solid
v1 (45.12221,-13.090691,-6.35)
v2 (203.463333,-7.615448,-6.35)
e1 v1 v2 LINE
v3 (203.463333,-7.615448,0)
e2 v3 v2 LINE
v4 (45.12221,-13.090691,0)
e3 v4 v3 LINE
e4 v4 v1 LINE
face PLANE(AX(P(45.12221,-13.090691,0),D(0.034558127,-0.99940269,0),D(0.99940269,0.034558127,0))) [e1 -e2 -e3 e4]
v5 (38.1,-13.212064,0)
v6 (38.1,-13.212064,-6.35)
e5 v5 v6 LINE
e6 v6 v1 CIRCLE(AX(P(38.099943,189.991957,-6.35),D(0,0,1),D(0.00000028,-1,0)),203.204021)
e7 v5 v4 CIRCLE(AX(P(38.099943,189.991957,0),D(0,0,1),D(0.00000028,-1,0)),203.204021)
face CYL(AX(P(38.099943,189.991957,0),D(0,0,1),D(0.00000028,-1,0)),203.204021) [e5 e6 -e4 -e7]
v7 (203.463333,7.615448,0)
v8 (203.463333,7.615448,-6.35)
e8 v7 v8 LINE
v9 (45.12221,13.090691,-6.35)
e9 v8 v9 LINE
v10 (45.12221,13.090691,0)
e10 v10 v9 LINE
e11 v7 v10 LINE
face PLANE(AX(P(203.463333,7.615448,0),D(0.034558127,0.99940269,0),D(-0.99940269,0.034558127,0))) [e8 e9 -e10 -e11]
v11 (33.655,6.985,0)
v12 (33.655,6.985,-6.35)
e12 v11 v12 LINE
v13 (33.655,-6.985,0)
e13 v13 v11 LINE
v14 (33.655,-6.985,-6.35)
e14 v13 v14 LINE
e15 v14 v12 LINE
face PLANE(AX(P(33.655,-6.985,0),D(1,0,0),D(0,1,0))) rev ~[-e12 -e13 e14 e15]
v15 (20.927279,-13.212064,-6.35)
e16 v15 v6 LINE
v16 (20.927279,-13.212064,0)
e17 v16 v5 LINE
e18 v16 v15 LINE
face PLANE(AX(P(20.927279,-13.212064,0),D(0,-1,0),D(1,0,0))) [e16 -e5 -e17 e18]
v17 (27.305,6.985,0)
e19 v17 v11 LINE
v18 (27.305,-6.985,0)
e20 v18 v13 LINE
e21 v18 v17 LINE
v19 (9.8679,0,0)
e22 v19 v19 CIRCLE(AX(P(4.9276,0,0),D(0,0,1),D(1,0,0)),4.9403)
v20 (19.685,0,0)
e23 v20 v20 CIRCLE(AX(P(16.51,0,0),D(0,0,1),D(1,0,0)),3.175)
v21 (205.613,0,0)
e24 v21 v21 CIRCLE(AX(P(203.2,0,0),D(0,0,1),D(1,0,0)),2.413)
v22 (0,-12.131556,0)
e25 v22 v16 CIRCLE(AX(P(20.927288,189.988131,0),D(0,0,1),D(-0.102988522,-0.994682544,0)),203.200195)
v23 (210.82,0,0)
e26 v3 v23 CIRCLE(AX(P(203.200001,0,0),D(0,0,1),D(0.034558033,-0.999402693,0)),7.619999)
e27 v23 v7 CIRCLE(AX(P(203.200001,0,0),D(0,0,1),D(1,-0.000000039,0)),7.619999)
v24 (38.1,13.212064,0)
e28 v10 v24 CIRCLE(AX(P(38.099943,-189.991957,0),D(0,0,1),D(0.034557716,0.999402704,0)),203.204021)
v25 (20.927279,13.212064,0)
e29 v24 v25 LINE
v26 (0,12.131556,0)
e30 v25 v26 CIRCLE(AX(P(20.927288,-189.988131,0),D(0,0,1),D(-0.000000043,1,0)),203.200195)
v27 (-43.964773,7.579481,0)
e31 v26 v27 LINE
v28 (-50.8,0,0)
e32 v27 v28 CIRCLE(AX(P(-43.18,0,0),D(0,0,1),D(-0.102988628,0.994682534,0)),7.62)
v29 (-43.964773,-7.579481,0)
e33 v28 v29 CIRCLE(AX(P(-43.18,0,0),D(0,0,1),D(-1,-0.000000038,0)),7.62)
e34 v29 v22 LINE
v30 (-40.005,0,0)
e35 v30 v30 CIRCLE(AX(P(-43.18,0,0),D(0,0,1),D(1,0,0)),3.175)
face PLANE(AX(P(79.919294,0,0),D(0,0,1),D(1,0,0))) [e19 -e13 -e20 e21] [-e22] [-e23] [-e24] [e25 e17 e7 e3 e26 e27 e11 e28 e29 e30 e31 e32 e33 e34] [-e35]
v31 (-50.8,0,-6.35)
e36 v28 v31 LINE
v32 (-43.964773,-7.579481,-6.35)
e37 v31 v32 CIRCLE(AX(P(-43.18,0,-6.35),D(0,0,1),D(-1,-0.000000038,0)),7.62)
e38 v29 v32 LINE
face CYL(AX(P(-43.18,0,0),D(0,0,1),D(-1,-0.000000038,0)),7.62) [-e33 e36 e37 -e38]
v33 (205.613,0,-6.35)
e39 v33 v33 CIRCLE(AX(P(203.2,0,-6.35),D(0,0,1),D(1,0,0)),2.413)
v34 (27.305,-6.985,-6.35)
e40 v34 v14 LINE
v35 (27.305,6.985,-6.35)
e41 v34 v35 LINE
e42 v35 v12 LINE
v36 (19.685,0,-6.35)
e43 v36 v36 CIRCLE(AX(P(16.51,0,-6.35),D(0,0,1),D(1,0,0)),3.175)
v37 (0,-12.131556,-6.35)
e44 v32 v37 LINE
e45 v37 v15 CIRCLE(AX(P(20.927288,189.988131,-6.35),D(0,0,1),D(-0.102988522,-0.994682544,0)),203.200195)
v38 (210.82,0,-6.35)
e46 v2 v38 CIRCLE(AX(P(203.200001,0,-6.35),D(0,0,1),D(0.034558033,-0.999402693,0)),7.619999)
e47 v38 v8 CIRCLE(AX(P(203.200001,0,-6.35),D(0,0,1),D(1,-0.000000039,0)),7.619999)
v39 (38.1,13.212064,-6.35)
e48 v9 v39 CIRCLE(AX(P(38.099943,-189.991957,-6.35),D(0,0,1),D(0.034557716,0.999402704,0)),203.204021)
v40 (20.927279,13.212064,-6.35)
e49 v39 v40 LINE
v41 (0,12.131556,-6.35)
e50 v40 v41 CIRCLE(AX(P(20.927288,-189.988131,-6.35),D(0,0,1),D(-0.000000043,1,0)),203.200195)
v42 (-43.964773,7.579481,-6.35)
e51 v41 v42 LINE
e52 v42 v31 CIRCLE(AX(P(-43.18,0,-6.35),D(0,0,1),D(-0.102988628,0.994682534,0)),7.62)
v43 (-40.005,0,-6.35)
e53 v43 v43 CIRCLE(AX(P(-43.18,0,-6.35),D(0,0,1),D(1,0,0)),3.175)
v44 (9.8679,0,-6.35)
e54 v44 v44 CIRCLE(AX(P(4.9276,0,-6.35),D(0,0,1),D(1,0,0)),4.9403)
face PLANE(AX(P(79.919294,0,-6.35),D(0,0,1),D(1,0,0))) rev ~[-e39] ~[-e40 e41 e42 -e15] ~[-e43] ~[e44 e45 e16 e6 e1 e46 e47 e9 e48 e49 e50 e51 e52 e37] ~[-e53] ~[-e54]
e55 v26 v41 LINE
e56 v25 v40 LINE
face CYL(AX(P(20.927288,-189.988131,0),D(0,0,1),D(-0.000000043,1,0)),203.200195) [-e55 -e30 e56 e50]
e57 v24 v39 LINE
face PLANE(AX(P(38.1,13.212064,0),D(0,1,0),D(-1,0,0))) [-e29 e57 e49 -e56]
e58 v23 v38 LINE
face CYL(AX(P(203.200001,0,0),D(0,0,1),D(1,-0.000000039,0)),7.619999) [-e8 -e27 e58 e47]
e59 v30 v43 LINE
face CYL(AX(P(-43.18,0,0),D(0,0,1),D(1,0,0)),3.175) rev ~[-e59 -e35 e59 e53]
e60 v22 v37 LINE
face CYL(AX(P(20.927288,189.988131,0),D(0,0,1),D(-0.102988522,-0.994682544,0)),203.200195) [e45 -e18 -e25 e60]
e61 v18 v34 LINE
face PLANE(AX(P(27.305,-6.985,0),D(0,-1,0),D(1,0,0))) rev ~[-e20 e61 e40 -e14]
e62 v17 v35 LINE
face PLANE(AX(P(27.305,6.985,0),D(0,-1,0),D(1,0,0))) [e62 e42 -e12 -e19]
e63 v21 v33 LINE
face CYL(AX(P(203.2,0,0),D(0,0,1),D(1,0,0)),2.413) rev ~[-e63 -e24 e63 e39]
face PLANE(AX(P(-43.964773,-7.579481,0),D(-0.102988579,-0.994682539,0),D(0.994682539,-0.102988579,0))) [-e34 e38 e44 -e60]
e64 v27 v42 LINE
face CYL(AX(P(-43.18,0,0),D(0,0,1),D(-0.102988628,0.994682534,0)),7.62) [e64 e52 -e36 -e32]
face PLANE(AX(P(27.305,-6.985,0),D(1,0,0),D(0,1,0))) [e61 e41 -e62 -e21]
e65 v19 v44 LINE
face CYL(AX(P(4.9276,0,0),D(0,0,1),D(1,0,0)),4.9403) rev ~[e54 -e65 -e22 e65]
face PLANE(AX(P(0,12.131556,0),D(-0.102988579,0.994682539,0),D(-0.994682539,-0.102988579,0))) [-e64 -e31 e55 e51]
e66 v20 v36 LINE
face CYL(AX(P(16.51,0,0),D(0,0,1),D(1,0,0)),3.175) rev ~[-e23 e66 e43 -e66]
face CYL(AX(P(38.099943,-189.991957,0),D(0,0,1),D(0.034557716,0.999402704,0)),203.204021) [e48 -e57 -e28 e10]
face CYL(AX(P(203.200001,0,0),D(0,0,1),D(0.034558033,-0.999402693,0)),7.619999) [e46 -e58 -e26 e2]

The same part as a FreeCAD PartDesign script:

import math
import FreeCAD as App
import Part
import Sketcher
from FreeCAD import Vector
Q = App.Units.Quantity


def add_polygon(sketch, points):
    """Adds a closed chain of lines whose ends are joined by coincident constraints."""
    first, n = sketch.GeometryCount, len(points)
    for a, b in zip(points, points[1:] + points[:1]):
        sketch.addGeometry(Part.LineSegment(App.Vector(*a, 0), App.Vector(*b, 0)), False)
    for i in range(n):
        sketch.addConstraint(Sketcher.Constraint("Coincident", first + i, 2, first + (i + 1) % n, 1))

doc = App.newDocument("Part")
body = doc.addObject("PartDesign::Body", "Body")

sketch1 = body.newObject("Sketcher::SketchObject", "Sketch")
sketch1.AttachmentSupport = (doc.getObject("XY_Plane"), [""])
sketch1.MapMode = "FlatFace"
sketch1.addGeometry([
    Part.LineSegment(Vector(38.1, 13.212064, 0), Vector(20.927279, 13.212064, 0)),
    Part.ArcOfCircle(Part.Circle(Vector(20.927288, -189.988131, 0), Vector(0, 0, 1), 203.200195), math.radians(90.000002), math.radians(95.911289)),
    Part.LineSegment(Vector(0, 12.131556, 0), Vector(-43.964773, 7.579481, 0)),
    Part.ArcOfCircle(Part.Circle(Vector(-43.18, 0, 0), Vector(0, 0, 1), 7.62), math.radians(95.911295), math.radians(179.999998)),
    Part.ArcOfCircle(Part.Circle(Vector(-43.18, 0, 0), Vector(0, 0, 1), 7.62), math.radians(-179.999998), math.radians(-95.911295)),
    Part.LineSegment(Vector(-43.964773, -7.579481, 0), Vector(0, -12.131556, 0)),
    Part.ArcOfCircle(Part.Circle(Vector(20.927288, 189.988131, 0), Vector(0, 0, 1), 203.200195), math.radians(-95.911289), math.radians(-90.000002)),
    Part.LineSegment(Vector(20.927279, -13.212064, 0), Vector(38.1, -13.212064, 0)),
    Part.ArcOfCircle(Part.Circle(Vector(38.099943, 189.991957, 0), Vector(0, 0, 1), 203.204021), math.radians(-89.999984), math.radians(-88.019594)),
    Part.LineSegment(Vector(45.12221, -13.090691, 0), Vector(203.463333, -7.615448, 0)),
    Part.ArcOfCircle(Part.Circle(Vector(203.200001, 0, 0), Vector(0, 0, 1), 7.619999), math.radians(-88.019576), math.radians(0.000002)),
    Part.ArcOfCircle(Part.Circle(Vector(203.200001, 0, 0), Vector(0, 0, 1), 7.619999), math.radians(-0.000002), math.radians(88.019576)),
    Part.LineSegment(Vector(203.463333, 7.615448, 0), Vector(45.12221, 13.090691, 0)),
    Part.ArcOfCircle(Part.Circle(Vector(38.099943, -189.991957, 0), Vector(0, 0, 1), 203.204021), math.radians(88.019594), math.radians(89.999984)),
], False)
sketch1.addConstraint([
    Sketcher.Constraint("Coincident", 0, 2, 1, 1),
    Sketcher.Constraint("Coincident", 1, 2, 2, 1),
    Sketcher.Constraint("Coincident", 2, 2, 3, 1),
    Sketcher.Constraint("Coincident", 3, 2, 4, 1),
    Sketcher.Constraint("Coincident", 4, 2, 5, 1),
    Sketcher.Constraint("Coincident", 5, 2, 6, 1),
    Sketcher.Constraint("Coincident", 6, 2, 7, 1),
    Sketcher.Constraint("Coincident", 7, 2, 8, 1),
    Sketcher.Constraint("Coincident", 8, 2, 9, 1),
    Sketcher.Constraint("Coincident", 9, 2, 10, 1),
    Sketcher.Constraint("Coincident", 10, 2, 11, 1),
    Sketcher.Constraint("Coincident", 11, 2, 12, 1),
    Sketcher.Constraint("Coincident", 12, 2, 13, 1),
    Sketcher.Constraint("Coincident", 13, 2, 0, 1),
    Sketcher.Constraint("Horizontal", 0),
    Sketcher.Constraint("Horizontal", 7),
    Sketcher.Constraint("Coincident", 4, 3, 3, 3),
    Sketcher.Constraint("Coincident", 11, 3, 10, 3),
    Sketcher.Constraint("PointOnObject", 3, 3, -1),
    Sketcher.Constraint("PointOnObject", 10, 3, -1),
    Sketcher.Constraint("PointOnObject", 1, 2, -2),
    Sketcher.Constraint("PointOnObject", 3, 2, -1),
    Sketcher.Constraint("PointOnObject", 5, 2, -2),
    Sketcher.Constraint("PointOnObject", 10, 2, -1),
    Sketcher.Constraint("Radius", 3, Q("0.3 in")),
    Sketcher.Constraint("Radius", 10, Q("0.3 in")),
    Sketcher.Constraint("DistanceX", -1, 1, 10, 3, Q("8 in")),
    Sketcher.Constraint("DistanceX", 3, 2, -1, 1, Q("2 in")),
    Sketcher.Constraint("DistanceX", -1, 1, 7, 2, Q("1.5 in")),
    Sketcher.Constraint("DistanceX", -1, 1, 13, 2, Q("1.5 in")),
    Sketcher.Constraint("Radius", 8, Q("203.204021 mm")),
    Sketcher.Constraint("Radius", 13, Q("203.204021 mm")),
    Sketcher.Constraint("Radius", 1, Q("203.200195 mm")),
    Sketcher.Constraint("Radius", 6, Q("203.200195 mm")),
    Sketcher.Constraint("DistanceX", 0, 2, 0, 1, Q("17.172721 mm")),
    Sketcher.Constraint("DistanceX", 7, 1, 7, 2, Q("17.172721 mm")),
    Sketcher.Constraint("DistanceY", 1, 2, 8, 3, Q("177.860401 mm")),
    Sketcher.Constraint("Distance", 9, Q("158.435758 mm")),
    Sketcher.Constraint("Distance", 12, Q("158.435758 mm")),
    Sketcher.Constraint("DistanceY", 1, 3, -1, 1, Q("189.988131 mm")),
    Sketcher.Constraint("DistanceY", -1, 1, 6, 3, Q("189.988131 mm")),
    Sketcher.Constraint("DistanceY", -1, 1, 2, 2, Q("7.579481 mm")),
    Sketcher.Constraint("DistanceY", 4, 2, -1, 1, Q("7.579481 mm")),
    Sketcher.Constraint("DistanceX", -1, 1, 8, 2, Q("45.12221 mm")),
    Sketcher.Constraint("DistanceY", 8, 2, -1, 1, Q("13.090691 mm")),
    Sketcher.Constraint("DistanceX", -1, 1, 12, 2, Q("45.12221 mm")),
    Sketcher.Constraint("DistanceY", -1, 1, 12, 2, Q("13.090691 mm")),
    Sketcher.Constraint("DistanceX", 2, 2, 6, 3, Q("64.892061 mm")),
])
pad1 = body.newObject("PartDesign::Pad", "Pad")
pad1.Profile = sketch1
pad1.Length = Q("0.25 in")
pad1.Reversed = True

sketch2 = body.newObject("Sketcher::SketchObject", "Sketch001")
sketch2.AttachmentSupport = (doc.getObject("XY_Plane"), [""])
sketch2.MapMode = "FlatFace"
sketch2.addGeometry([
    Part.Circle(Vector(-43.18, 0, 0), Vector(0, 0, 1), 3.175),
    Part.Circle(Vector(16.51, 0, 0), Vector(0, 0, 1), 3.175),
    Part.Circle(Vector(4.9276, 0, 0), Vector(0, 0, 1), 4.9403),
    Part.Circle(Vector(203.2, 0, 0), Vector(0, 0, 1), 2.413),
], False)
sketch2.addConstraint([
    Sketcher.Constraint("Equal", 0, 1),
    Sketcher.Constraint("PointOnObject", 0, 3, -1),
    Sketcher.Constraint("PointOnObject", 1, 3, -1),
    Sketcher.Constraint("PointOnObject", 2, 3, -1),
    Sketcher.Constraint("PointOnObject", 3, 3, -1),
    Sketcher.Constraint("Diameter", 0, Q("0.25 in")),
    Sketcher.Constraint("Diameter", 3, Q("0.19 in")),
    Sketcher.Constraint("Diameter", 2, Q("0.389 in")),
    Sketcher.Constraint("DistanceX", -1, 1, 3, 3, Q("8 in")),
    Sketcher.Constraint("DistanceX", 0, 3, -1, 1, Q("1.7 in")),
    Sketcher.Constraint("DistanceX", -1, 1, 1, 3, Q("0.65 in")),
    Sketcher.Constraint("DistanceX", -1, 1, 2, 3, Q("0.194 in")),
])
pocket1 = body.newObject("PartDesign::Pocket", "Pocket")
pocket1.Profile = sketch2
pocket1.Type = "ThroughAll"

sketch3 = body.newObject("Sketcher::SketchObject", "Sketch002")
sketch3.AttachmentSupport = (doc.getObject("XY_Plane"), [""])
sketch3.MapMode = "FlatFace"
add_polygon(sketch3, [(27.305, 6.985), (27.305, -6.985), (33.655, -6.985), (33.655, 6.985)])
sketch3.addConstraint([
    Sketcher.Constraint("Vertical", 0),
    Sketcher.Constraint("Horizontal", 1),
    Sketcher.Constraint("Vertical", 2),
    Sketcher.Constraint("Horizontal", 3),
    Sketcher.Constraint("DistanceX", 1, 1, 1, 2, Q("0.25 in")),
    Sketcher.Constraint("DistanceY", 0, 2, 0, 1, Q("0.55 in")),
    Sketcher.Constraint("DistanceX", -1, 1, 0, 2, Q("1.075 in")),
    Sketcher.Constraint("DistanceY", 0, 2, -1, 1, Q("0.275 in")),
])
pocket2 = body.newObject("PartDesign::Pocket", "Pocket001")
pocket2.Profile = sketch3
pocket2.Type = "ThroughAll"

doc.recompute()
